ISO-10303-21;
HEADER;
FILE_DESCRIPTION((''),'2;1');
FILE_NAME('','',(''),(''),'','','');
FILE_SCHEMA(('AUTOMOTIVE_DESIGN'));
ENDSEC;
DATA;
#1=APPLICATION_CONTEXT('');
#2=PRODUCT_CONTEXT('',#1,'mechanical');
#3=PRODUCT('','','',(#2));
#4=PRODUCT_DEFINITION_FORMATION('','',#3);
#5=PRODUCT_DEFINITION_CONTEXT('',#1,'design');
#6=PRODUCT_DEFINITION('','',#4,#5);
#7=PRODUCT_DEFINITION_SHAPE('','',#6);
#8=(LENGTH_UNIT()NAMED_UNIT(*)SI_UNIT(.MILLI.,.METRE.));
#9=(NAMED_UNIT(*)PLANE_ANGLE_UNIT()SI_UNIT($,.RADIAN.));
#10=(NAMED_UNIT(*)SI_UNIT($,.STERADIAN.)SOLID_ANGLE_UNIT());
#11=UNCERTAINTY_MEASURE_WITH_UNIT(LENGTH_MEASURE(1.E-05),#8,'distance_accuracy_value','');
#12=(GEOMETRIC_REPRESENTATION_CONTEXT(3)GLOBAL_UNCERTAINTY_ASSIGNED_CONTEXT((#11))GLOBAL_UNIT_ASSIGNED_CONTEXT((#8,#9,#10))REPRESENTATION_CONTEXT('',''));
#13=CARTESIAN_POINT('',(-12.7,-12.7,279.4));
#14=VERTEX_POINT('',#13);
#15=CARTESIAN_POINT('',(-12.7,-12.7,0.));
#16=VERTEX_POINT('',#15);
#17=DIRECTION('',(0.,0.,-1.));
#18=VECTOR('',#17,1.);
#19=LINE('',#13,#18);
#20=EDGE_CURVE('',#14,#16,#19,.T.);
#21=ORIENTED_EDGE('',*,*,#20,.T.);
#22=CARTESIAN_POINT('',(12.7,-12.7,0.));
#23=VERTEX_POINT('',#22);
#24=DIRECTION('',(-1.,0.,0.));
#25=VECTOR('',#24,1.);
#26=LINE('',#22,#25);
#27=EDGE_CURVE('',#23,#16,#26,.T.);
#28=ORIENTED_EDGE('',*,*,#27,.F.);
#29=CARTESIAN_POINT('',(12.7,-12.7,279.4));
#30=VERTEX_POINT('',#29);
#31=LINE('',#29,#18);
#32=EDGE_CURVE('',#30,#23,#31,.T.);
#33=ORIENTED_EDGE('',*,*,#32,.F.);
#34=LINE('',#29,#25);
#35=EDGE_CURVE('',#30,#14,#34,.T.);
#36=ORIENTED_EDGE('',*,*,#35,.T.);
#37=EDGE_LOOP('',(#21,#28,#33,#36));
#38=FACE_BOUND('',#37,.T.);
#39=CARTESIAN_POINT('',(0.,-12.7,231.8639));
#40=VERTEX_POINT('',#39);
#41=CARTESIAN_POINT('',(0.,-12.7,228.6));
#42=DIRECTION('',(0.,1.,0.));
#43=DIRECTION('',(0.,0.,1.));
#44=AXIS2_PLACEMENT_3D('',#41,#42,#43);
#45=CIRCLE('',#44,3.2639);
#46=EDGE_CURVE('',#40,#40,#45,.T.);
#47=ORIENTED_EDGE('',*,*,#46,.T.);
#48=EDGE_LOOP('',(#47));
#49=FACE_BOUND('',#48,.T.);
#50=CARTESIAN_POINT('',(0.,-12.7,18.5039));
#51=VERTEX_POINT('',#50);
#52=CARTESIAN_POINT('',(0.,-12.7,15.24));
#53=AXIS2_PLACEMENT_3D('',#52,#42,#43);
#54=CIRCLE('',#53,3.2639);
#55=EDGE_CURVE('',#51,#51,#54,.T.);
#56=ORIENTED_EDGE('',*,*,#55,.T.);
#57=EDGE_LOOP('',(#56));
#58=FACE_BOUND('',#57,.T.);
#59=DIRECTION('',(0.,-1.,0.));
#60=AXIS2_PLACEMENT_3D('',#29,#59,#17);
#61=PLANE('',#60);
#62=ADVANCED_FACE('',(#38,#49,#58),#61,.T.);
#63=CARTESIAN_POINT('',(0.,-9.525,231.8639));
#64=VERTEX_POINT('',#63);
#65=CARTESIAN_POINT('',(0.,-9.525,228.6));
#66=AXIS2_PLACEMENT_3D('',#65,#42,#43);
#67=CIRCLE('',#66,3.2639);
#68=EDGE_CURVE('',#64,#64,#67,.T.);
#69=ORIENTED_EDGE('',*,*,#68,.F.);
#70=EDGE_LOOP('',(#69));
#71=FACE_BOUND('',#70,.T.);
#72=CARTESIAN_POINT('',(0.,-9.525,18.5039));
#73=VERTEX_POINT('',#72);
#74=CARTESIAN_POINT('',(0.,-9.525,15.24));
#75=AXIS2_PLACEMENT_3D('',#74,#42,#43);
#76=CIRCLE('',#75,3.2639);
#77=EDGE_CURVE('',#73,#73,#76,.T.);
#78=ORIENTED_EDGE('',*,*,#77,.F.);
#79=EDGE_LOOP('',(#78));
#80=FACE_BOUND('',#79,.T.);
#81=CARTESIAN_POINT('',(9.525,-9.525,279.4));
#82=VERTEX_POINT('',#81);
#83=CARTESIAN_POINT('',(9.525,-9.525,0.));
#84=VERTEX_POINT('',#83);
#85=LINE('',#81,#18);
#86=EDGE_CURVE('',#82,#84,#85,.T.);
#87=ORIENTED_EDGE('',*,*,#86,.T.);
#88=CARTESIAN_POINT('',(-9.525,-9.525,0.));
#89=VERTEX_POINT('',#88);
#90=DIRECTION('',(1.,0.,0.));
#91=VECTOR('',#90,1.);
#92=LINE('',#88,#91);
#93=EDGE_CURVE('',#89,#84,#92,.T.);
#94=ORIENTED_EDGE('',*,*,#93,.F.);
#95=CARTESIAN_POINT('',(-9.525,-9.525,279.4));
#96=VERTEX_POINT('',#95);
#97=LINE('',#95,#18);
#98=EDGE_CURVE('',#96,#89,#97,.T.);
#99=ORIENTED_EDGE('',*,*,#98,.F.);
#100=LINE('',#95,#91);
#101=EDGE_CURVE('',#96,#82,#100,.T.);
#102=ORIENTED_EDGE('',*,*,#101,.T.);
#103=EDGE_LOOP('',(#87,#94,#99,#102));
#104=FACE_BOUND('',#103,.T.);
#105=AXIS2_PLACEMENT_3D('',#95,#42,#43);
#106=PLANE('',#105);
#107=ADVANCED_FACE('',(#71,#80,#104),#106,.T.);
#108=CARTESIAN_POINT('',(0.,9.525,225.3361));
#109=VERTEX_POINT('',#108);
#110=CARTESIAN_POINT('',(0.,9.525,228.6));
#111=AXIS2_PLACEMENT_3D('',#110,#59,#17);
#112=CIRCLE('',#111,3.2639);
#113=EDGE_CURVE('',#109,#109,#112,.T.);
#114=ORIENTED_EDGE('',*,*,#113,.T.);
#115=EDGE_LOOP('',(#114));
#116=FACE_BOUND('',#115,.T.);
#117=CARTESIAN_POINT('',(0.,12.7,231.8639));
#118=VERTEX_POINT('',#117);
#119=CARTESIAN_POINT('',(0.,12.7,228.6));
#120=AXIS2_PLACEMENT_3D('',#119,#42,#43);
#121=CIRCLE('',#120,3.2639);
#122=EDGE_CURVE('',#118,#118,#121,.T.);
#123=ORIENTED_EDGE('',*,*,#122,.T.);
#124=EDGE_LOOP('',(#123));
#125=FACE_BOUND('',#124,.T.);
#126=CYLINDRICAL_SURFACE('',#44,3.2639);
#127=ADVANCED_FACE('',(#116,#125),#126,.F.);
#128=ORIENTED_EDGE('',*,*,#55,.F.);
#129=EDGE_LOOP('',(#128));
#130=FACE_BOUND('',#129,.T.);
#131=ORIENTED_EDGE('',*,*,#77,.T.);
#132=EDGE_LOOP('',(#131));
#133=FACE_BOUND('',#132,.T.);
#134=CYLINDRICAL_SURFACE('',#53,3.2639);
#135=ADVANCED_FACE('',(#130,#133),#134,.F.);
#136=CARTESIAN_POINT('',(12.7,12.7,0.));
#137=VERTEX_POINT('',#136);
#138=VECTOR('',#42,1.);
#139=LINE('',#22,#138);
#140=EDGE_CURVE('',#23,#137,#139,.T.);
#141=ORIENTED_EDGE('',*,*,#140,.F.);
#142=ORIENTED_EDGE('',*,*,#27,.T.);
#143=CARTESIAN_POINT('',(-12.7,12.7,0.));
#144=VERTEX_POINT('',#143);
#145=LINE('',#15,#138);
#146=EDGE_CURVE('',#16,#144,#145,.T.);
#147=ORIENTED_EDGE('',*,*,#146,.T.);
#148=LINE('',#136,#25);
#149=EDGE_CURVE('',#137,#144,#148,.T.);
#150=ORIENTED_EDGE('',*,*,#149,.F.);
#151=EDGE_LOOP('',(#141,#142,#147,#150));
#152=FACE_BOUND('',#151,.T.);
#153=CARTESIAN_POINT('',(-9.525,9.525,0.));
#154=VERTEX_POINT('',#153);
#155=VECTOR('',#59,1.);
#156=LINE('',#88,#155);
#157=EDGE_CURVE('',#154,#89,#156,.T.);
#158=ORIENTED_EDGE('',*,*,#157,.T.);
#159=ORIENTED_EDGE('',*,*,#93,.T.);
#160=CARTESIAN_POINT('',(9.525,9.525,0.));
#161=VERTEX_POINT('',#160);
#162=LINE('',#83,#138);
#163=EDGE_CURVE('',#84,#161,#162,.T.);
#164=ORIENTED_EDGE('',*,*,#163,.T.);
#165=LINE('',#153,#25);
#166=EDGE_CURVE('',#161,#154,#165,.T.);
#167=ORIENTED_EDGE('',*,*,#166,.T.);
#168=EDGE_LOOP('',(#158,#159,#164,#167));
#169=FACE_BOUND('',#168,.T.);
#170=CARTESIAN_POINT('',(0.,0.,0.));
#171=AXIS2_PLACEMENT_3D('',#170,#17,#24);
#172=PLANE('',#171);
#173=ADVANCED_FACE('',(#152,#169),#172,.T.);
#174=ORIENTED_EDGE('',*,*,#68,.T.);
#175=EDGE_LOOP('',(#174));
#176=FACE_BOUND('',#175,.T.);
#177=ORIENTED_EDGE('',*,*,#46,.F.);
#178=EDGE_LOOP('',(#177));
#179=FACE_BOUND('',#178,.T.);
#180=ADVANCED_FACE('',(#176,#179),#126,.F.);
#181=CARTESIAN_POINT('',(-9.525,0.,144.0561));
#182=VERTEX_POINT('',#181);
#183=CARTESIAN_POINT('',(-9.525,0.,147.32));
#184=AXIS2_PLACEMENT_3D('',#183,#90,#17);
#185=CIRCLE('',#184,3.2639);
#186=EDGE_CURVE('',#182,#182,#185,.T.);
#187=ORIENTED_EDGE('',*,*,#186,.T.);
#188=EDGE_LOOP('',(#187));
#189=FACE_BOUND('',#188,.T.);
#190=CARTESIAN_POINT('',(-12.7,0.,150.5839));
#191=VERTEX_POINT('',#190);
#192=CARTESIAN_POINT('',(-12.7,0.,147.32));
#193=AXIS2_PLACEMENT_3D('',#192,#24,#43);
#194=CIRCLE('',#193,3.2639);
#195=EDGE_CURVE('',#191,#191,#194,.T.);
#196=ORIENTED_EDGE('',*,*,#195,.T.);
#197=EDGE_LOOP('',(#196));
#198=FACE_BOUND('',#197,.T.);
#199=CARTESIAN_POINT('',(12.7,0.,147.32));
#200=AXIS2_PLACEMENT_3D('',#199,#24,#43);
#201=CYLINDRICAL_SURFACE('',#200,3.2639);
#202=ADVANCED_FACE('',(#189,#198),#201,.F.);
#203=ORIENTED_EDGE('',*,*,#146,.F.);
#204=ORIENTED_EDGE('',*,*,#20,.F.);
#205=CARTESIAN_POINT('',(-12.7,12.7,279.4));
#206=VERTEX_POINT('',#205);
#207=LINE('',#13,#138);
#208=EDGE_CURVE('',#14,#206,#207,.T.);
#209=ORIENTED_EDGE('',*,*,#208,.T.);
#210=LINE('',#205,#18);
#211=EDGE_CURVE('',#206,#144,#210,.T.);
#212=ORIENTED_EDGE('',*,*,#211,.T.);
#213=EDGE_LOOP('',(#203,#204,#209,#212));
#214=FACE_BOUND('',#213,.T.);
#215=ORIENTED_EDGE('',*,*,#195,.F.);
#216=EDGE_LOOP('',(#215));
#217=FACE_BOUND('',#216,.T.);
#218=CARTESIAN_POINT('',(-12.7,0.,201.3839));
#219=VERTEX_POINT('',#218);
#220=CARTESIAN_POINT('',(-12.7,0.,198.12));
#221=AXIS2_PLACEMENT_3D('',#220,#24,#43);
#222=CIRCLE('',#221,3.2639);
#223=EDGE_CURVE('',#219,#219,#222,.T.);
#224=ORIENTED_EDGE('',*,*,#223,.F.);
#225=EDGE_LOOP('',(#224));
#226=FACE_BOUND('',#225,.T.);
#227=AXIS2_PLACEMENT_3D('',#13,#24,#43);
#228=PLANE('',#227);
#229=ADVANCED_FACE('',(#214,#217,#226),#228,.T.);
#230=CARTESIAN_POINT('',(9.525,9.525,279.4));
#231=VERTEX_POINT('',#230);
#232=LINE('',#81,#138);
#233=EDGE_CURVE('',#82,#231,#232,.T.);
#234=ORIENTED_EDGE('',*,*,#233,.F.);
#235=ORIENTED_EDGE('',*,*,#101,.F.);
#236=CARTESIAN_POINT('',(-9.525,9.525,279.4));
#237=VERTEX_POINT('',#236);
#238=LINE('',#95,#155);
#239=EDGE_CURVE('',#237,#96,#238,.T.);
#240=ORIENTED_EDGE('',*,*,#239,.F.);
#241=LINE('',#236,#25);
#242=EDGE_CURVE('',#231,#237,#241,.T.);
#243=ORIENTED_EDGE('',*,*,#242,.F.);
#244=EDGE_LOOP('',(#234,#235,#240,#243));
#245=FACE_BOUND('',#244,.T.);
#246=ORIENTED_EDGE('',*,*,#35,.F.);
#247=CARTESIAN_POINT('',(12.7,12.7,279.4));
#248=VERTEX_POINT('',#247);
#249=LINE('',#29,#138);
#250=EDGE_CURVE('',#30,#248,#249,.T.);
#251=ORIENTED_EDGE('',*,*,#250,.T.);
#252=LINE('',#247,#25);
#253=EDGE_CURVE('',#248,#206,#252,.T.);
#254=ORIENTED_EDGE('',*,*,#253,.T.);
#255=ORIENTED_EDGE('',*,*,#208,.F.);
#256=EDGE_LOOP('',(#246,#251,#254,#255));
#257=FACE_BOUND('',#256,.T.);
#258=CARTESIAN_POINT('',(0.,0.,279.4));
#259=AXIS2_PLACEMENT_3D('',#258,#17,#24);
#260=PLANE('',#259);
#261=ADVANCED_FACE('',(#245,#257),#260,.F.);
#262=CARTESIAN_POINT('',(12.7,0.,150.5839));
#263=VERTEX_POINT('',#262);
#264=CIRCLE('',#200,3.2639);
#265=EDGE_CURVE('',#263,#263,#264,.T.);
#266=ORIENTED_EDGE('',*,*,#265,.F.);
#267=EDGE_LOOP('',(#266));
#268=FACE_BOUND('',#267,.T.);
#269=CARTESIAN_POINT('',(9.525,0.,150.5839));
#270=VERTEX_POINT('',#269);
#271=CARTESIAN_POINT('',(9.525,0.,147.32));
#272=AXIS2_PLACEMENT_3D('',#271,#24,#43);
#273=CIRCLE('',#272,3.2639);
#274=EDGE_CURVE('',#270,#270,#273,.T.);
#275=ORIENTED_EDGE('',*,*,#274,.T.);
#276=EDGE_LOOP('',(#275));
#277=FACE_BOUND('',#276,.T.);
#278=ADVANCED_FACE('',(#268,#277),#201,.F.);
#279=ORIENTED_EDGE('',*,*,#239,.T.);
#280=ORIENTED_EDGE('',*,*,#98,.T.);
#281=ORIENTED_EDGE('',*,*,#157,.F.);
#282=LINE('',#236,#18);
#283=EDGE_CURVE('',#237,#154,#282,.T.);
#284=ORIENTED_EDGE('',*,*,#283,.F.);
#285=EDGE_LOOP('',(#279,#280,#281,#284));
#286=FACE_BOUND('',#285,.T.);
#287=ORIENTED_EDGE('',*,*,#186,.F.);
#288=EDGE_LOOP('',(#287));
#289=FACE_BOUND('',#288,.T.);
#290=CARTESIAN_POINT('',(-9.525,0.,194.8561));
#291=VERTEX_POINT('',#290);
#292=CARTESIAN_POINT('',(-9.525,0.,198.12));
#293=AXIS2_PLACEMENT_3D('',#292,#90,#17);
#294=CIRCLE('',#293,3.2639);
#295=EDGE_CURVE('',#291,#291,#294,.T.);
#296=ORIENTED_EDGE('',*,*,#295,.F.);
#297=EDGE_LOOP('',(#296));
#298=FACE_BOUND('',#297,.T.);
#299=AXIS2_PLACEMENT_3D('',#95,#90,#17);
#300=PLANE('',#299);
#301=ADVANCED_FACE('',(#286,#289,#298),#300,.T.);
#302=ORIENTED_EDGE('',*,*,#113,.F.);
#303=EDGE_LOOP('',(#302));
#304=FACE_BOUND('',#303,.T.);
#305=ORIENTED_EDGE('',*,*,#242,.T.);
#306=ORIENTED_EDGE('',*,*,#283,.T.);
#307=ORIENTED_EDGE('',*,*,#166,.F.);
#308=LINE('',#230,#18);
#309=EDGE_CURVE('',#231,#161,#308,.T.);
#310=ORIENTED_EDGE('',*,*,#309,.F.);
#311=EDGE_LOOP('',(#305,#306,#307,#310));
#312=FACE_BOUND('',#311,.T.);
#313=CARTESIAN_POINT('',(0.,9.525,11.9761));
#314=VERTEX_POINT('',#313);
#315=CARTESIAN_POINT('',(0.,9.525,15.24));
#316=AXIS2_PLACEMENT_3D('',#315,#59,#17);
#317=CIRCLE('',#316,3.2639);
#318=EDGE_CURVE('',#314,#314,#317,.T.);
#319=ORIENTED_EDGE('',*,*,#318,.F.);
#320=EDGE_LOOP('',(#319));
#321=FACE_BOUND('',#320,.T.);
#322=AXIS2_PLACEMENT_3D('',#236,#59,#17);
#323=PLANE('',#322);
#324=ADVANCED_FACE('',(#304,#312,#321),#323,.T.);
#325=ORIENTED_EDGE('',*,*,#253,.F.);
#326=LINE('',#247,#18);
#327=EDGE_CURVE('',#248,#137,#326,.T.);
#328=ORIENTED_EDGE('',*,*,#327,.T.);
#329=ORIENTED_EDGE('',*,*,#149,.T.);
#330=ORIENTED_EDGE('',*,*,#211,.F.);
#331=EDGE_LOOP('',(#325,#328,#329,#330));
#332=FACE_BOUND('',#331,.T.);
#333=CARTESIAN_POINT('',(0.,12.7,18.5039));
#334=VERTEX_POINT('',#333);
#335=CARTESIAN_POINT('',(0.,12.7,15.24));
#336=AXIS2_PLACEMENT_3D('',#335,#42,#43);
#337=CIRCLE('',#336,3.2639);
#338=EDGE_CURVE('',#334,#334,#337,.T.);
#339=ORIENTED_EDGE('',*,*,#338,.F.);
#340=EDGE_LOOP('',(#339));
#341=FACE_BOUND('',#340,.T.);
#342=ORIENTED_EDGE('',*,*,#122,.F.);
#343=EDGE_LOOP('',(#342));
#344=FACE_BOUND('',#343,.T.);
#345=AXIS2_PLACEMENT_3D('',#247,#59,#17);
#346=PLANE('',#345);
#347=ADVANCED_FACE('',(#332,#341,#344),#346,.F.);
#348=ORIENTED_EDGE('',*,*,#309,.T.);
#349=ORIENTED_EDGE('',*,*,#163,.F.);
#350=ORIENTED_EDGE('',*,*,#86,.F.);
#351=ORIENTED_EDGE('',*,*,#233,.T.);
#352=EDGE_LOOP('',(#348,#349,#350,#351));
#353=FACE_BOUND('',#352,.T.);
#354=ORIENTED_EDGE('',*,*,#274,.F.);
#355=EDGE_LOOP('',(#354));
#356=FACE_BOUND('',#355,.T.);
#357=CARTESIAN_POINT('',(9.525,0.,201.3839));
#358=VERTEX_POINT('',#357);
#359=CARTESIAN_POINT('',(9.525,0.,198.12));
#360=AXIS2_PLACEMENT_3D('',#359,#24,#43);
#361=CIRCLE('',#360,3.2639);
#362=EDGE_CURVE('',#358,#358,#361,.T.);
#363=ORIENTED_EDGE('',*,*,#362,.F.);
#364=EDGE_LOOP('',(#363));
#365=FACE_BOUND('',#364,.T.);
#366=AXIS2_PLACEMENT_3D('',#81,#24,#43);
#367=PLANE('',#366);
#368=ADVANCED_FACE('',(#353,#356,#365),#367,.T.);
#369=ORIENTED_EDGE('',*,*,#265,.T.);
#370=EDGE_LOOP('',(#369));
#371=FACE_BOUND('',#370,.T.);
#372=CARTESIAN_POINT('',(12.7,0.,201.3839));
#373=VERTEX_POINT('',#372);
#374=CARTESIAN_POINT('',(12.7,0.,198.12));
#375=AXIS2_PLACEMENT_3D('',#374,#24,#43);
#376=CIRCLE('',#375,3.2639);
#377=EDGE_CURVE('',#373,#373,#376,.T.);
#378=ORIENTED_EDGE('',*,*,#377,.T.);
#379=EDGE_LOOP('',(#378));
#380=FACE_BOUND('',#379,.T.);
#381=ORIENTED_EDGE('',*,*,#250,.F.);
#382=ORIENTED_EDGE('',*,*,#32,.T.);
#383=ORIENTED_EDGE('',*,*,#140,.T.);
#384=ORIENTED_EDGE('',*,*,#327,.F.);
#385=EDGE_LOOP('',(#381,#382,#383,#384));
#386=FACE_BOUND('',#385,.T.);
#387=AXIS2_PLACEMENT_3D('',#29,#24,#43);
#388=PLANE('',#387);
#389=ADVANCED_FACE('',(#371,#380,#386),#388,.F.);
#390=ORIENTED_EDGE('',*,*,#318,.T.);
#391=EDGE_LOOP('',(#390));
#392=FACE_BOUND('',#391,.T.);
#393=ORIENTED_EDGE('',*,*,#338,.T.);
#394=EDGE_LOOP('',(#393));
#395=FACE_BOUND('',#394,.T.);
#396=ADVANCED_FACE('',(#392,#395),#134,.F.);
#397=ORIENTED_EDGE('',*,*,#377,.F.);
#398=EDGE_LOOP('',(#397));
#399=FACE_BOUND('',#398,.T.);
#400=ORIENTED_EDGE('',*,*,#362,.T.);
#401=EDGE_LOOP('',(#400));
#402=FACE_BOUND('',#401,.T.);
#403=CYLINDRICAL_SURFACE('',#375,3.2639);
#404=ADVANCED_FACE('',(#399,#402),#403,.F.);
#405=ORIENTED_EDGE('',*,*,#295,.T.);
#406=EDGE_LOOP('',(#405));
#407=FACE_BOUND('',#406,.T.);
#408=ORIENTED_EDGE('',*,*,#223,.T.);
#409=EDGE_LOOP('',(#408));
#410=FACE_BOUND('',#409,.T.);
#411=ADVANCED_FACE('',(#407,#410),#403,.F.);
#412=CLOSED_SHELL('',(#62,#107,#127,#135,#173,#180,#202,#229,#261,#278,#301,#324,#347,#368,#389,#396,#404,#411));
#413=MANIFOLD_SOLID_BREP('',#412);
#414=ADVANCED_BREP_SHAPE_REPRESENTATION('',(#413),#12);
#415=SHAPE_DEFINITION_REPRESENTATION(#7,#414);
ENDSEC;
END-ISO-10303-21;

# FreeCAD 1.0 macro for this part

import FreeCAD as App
import Part
import Sketcher
from FreeCAD import Vector
Q = App.Units.Quantity

doc = App.newDocument("Part")
body = doc.addObject("PartDesign::Body", "Body")

# Sketch on XY plane
sketch1 = doc.addObject("Sketcher::SketchObject", "Sketch")
body.addObject(sketch1)
sketch1.AttachmentSupport = (doc.XY_Plane, [""])
sketch1.MapMode = "FlatFace"
sketch1.addGeometry([
    Part.LineSegment(Vector(-13, 13, 0), Vector(-13, -13, 0)),
    Part.LineSegment(Vector(-13, -13, 0), Vector(13, -13, 0)),
    Part.LineSegment(Vector(13, -13, 0), Vector(13, 13, 0)),
    Part.LineSegment(Vector(13, 13, 0), Vector(-13, 13, 0)),
], False)
sketch1.addConstraint([
    Sketcher.Constraint("Coincident", 0, 2, 1, 1),
    Sketcher.Constraint("Coincident", 1, 2, 2, 1),
    Sketcher.Constraint("Coincident", 2, 2, 3, 1),
    Sketcher.Constraint("Coincident", 3, 2, 0, 1),
    Sketcher.Constraint("Vertical", 0),
    Sketcher.Constraint("Horizontal", 1),
    Sketcher.Constraint("Vertical", 2),
    Sketcher.Constraint("Horizontal", 3),
    Sketcher.Constraint("Symmetric", 0, 2, 2, 2, -1, 1),
    Sketcher.Constraint("Equal", 3, 0),
    Sketcher.Constraint("DistanceX", 1, 1, 1, 2, Q("1 in")),
])
pad1 = doc.addObject("PartDesign::Pad", "Pad")
body.addObject(pad1)
pad1.Profile = sketch1
pad1.Length = Q("11 in")

# Sketch on XY plane
sketch2 = doc.addObject("Sketcher::SketchObject", "Sketch001")
body.addObject(sketch2)
sketch2.AttachmentSupport = (doc.XY_Plane, [""])
sketch2.MapMode = "FlatFace"
sketch2.addGeometry([
    Part.LineSegment(Vector(-10, 10, 0), Vector(-10, -10, 0)),
    Part.LineSegment(Vector(-10, -10, 0), Vector(10, -10, 0)),
    Part.LineSegment(Vector(10, -10, 0), Vector(10, 10, 0)),
    Part.LineSegment(Vector(10, 10, 0), Vector(-10, 10, 0)),
], False)
sketch2.addConstraint([
    Sketcher.Constraint("Coincident", 0, 2, 1, 1),
    Sketcher.Constraint("Coincident", 1, 2, 2, 1),
    Sketcher.Constraint("Coincident", 2, 2, 3, 1),
    Sketcher.Constraint("Coincident", 3, 2, 0, 1),
    Sketcher.Constraint("Vertical", 0),
    Sketcher.Constraint("Horizontal", 1),
    Sketcher.Constraint("Vertical", 2),
    Sketcher.Constraint("Horizontal", 3),
    Sketcher.Constraint("Symmetric", 0, 2, 2, 2, -1, 1),
    Sketcher.Constraint("Equal", 3, 0),
    Sketcher.Constraint("DistanceX", 1, 1, 1, 2, Q("0.75 in")),
])
pocket1 = doc.addObject("PartDesign::Pocket", "Pocket")
body.addObject(pocket1)
pocket1.Profile = sketch2
pocket1.Type = "ThroughAll"
pocket1.Reversed = True

# Sketch on XZ plane
sketch3 = doc.addObject("Sketcher::SketchObject", "Sketch002")
body.addObject(sketch3)
sketch3.AttachmentSupport = (doc.XZ_Plane, [""])
sketch3.MapMode = "FlatFace"
sketch3.AttachmentOffset = App.Placement(Vector(0, 0, -0.5 * 25.4), App.Rotation())
sketch3.addGeometry(Part.Circle(Vector(0, 15.2, 0), Vector(0, 0, 1), 3.3), False)
sketch3.addConstraint([
    Sketcher.Constraint("PointOnObject", 0, 3, -2),
    Sketcher.Constraint("Diameter", 0, Q("0.257 in")),
    Sketcher.Constraint("DistanceY", -1, 1, 0, 3, Q("0.6 in")),
])
pocket2 = doc.addObject("PartDesign::Pocket", "Pocket001")
body.addObject(pocket2)
pocket2.Profile = sketch3
pocket2.Type = "ThroughAll"
pocket2.Reversed = True

# Sketch on XZ plane
sketch4 = doc.addObject("Sketcher::SketchObject", "Sketch003")
body.addObject(sketch4)
sketch4.AttachmentSupport = (doc.XZ_Plane, [""])
sketch4.MapMode = "FlatFace"
sketch4.AttachmentOffset = App.Placement(Vector(0, 0, -0.5 * 25.4), App.Rotation())
sketch4.addGeometry(Part.Circle(Vector(0, 228.6, 0), Vector(0, 0, 1), 3.3), False)
sketch4.addConstraint([
    Sketcher.Constraint("PointOnObject", 0, 3, -2),
    Sketcher.Constraint("Diameter", 0, Q("0.257 in")),
    Sketcher.Constraint("DistanceY", -1, 1, 0, 3, Q("9 in")),
])
pocket3 = doc.addObject("PartDesign::Pocket", "Pocket002")
body.addObject(pocket3)
pocket3.Profile = sketch4
pocket3.Type = "ThroughAll"
pocket3.Reversed = True

# Sketch on YZ plane
sketch5 = doc.addObject("Sketcher::SketchObject", "Sketch004")
body.addObject(sketch5)
sketch5.AttachmentSupport = (doc.YZ_Plane, [""])
sketch5.MapMode = "FlatFace"
sketch5.AttachmentOffset = App.Placement(Vector(0, 0, -0.5 * 25.4), App.Rotation())
sketch5.addGeometry([
    Part.Circle(Vector(0, 198.1, 0), Vector(0, 0, 1), 3.3),
    Part.Circle(Vector(0, 147.3, 0), Vector(0, 0, 1), 3.3),
], False)
sketch5.addConstraint([
    Sketcher.Constraint("Equal", 0, 1),
    Sketcher.Constraint("PointOnObject", 0, 3, -2),
    Sketcher.Constraint("PointOnObject", 1, 3, -2),
    Sketcher.Constraint("Diameter", 0, Q("0.257 in")),
    Sketcher.Constraint("DistanceY", 1, 3, 0, 3, Q("2 in")),
    Sketcher.Constraint("DistanceY", -1, 1, 0, 3, Q("7.8 in")),
])
pocket4 = doc.addObject("PartDesign::Pocket", "Pocket003")
body.addObject(pocket4)
pocket4.Profile = sketch5
pocket4.Type = "ThroughAll"
pocket4.Reversed = True

doc.recompute()
